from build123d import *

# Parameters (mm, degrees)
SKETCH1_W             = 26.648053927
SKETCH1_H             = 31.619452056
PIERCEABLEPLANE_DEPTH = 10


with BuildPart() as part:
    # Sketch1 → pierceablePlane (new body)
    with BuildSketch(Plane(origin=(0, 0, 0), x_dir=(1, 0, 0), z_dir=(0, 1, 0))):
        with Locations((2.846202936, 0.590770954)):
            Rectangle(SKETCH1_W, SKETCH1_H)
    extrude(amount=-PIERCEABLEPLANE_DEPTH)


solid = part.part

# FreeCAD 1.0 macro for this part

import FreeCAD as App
import Part
import Sketcher
Q = App.Units.Quantity

doc = App.newDocument("Part")
params = doc.addObject("Spreadsheet::Sheet", "Params")
for row, (alias, value) in enumerate([
    ("pad1_length", "10 mm"),
], start=1):
    params.set(f"A{row}", alias)
    params.set(f"B{row}", "=" + value)
    params.setAlias(f"B{row}", alias)

body = doc.addObject("PartDesign::Body", "Body")

sketch1 = doc.addObject("Sketcher::SketchObject", "Sketch")
body.addObject(sketch1)
sketch1.AttachmentSupport = (doc.XZ_Plane, [""])
sketch1.MapMode = "FlatFace"
sketch1.addGeometry([
    Part.LineSegment(App.Vector(-10, -16, 0), App.Vector(-10, 15, 0)),
    Part.LineSegment(App.Vector(-10, 15, 0), App.Vector(16, 15, 0)),
    Part.LineSegment(App.Vector(16, 15, 0), App.Vector(16, -16, 0)),
    Part.LineSegment(App.Vector(16, -16, 0), App.Vector(-10, -16, 0)),
], False)
sketch1.addConstraint([
    Sketcher.Constraint("Coincident", 0, 2, 1, 1),
    Sketcher.Constraint("Coincident", 1, 2, 2, 1),
    Sketcher.Constraint("Coincident", 2, 2, 3, 1),
    Sketcher.Constraint("Coincident", 3, 2, 0, 1),
    Sketcher.Constraint("Vertical", 0),
    Sketcher.Constraint("Horizontal", 1),
    Sketcher.Constraint("Vertical", 2),
    Sketcher.Constraint("Horizontal", 3),
    Sketcher.Constraint("DistanceX", 1, 1, 1, 2, Q("26.648054 mm")),
    Sketcher.Constraint("DistanceY", 0, 1, 0, 2, Q("31.619452 mm")),
    Sketcher.Constraint("DistanceX", -1, 1, 1, 2, Q("16.17023 mm")),
    Sketcher.Constraint("DistanceY", -1, 1, 0, 2, Q("15.218955 mm")),
])
pad1 = doc.addObject("PartDesign::Pad", "Pad")
body.addObject(pad1)
pad1.Profile = sketch1
pad1.setExpression("Length", "Params.pad1_length")

doc.recompute()
